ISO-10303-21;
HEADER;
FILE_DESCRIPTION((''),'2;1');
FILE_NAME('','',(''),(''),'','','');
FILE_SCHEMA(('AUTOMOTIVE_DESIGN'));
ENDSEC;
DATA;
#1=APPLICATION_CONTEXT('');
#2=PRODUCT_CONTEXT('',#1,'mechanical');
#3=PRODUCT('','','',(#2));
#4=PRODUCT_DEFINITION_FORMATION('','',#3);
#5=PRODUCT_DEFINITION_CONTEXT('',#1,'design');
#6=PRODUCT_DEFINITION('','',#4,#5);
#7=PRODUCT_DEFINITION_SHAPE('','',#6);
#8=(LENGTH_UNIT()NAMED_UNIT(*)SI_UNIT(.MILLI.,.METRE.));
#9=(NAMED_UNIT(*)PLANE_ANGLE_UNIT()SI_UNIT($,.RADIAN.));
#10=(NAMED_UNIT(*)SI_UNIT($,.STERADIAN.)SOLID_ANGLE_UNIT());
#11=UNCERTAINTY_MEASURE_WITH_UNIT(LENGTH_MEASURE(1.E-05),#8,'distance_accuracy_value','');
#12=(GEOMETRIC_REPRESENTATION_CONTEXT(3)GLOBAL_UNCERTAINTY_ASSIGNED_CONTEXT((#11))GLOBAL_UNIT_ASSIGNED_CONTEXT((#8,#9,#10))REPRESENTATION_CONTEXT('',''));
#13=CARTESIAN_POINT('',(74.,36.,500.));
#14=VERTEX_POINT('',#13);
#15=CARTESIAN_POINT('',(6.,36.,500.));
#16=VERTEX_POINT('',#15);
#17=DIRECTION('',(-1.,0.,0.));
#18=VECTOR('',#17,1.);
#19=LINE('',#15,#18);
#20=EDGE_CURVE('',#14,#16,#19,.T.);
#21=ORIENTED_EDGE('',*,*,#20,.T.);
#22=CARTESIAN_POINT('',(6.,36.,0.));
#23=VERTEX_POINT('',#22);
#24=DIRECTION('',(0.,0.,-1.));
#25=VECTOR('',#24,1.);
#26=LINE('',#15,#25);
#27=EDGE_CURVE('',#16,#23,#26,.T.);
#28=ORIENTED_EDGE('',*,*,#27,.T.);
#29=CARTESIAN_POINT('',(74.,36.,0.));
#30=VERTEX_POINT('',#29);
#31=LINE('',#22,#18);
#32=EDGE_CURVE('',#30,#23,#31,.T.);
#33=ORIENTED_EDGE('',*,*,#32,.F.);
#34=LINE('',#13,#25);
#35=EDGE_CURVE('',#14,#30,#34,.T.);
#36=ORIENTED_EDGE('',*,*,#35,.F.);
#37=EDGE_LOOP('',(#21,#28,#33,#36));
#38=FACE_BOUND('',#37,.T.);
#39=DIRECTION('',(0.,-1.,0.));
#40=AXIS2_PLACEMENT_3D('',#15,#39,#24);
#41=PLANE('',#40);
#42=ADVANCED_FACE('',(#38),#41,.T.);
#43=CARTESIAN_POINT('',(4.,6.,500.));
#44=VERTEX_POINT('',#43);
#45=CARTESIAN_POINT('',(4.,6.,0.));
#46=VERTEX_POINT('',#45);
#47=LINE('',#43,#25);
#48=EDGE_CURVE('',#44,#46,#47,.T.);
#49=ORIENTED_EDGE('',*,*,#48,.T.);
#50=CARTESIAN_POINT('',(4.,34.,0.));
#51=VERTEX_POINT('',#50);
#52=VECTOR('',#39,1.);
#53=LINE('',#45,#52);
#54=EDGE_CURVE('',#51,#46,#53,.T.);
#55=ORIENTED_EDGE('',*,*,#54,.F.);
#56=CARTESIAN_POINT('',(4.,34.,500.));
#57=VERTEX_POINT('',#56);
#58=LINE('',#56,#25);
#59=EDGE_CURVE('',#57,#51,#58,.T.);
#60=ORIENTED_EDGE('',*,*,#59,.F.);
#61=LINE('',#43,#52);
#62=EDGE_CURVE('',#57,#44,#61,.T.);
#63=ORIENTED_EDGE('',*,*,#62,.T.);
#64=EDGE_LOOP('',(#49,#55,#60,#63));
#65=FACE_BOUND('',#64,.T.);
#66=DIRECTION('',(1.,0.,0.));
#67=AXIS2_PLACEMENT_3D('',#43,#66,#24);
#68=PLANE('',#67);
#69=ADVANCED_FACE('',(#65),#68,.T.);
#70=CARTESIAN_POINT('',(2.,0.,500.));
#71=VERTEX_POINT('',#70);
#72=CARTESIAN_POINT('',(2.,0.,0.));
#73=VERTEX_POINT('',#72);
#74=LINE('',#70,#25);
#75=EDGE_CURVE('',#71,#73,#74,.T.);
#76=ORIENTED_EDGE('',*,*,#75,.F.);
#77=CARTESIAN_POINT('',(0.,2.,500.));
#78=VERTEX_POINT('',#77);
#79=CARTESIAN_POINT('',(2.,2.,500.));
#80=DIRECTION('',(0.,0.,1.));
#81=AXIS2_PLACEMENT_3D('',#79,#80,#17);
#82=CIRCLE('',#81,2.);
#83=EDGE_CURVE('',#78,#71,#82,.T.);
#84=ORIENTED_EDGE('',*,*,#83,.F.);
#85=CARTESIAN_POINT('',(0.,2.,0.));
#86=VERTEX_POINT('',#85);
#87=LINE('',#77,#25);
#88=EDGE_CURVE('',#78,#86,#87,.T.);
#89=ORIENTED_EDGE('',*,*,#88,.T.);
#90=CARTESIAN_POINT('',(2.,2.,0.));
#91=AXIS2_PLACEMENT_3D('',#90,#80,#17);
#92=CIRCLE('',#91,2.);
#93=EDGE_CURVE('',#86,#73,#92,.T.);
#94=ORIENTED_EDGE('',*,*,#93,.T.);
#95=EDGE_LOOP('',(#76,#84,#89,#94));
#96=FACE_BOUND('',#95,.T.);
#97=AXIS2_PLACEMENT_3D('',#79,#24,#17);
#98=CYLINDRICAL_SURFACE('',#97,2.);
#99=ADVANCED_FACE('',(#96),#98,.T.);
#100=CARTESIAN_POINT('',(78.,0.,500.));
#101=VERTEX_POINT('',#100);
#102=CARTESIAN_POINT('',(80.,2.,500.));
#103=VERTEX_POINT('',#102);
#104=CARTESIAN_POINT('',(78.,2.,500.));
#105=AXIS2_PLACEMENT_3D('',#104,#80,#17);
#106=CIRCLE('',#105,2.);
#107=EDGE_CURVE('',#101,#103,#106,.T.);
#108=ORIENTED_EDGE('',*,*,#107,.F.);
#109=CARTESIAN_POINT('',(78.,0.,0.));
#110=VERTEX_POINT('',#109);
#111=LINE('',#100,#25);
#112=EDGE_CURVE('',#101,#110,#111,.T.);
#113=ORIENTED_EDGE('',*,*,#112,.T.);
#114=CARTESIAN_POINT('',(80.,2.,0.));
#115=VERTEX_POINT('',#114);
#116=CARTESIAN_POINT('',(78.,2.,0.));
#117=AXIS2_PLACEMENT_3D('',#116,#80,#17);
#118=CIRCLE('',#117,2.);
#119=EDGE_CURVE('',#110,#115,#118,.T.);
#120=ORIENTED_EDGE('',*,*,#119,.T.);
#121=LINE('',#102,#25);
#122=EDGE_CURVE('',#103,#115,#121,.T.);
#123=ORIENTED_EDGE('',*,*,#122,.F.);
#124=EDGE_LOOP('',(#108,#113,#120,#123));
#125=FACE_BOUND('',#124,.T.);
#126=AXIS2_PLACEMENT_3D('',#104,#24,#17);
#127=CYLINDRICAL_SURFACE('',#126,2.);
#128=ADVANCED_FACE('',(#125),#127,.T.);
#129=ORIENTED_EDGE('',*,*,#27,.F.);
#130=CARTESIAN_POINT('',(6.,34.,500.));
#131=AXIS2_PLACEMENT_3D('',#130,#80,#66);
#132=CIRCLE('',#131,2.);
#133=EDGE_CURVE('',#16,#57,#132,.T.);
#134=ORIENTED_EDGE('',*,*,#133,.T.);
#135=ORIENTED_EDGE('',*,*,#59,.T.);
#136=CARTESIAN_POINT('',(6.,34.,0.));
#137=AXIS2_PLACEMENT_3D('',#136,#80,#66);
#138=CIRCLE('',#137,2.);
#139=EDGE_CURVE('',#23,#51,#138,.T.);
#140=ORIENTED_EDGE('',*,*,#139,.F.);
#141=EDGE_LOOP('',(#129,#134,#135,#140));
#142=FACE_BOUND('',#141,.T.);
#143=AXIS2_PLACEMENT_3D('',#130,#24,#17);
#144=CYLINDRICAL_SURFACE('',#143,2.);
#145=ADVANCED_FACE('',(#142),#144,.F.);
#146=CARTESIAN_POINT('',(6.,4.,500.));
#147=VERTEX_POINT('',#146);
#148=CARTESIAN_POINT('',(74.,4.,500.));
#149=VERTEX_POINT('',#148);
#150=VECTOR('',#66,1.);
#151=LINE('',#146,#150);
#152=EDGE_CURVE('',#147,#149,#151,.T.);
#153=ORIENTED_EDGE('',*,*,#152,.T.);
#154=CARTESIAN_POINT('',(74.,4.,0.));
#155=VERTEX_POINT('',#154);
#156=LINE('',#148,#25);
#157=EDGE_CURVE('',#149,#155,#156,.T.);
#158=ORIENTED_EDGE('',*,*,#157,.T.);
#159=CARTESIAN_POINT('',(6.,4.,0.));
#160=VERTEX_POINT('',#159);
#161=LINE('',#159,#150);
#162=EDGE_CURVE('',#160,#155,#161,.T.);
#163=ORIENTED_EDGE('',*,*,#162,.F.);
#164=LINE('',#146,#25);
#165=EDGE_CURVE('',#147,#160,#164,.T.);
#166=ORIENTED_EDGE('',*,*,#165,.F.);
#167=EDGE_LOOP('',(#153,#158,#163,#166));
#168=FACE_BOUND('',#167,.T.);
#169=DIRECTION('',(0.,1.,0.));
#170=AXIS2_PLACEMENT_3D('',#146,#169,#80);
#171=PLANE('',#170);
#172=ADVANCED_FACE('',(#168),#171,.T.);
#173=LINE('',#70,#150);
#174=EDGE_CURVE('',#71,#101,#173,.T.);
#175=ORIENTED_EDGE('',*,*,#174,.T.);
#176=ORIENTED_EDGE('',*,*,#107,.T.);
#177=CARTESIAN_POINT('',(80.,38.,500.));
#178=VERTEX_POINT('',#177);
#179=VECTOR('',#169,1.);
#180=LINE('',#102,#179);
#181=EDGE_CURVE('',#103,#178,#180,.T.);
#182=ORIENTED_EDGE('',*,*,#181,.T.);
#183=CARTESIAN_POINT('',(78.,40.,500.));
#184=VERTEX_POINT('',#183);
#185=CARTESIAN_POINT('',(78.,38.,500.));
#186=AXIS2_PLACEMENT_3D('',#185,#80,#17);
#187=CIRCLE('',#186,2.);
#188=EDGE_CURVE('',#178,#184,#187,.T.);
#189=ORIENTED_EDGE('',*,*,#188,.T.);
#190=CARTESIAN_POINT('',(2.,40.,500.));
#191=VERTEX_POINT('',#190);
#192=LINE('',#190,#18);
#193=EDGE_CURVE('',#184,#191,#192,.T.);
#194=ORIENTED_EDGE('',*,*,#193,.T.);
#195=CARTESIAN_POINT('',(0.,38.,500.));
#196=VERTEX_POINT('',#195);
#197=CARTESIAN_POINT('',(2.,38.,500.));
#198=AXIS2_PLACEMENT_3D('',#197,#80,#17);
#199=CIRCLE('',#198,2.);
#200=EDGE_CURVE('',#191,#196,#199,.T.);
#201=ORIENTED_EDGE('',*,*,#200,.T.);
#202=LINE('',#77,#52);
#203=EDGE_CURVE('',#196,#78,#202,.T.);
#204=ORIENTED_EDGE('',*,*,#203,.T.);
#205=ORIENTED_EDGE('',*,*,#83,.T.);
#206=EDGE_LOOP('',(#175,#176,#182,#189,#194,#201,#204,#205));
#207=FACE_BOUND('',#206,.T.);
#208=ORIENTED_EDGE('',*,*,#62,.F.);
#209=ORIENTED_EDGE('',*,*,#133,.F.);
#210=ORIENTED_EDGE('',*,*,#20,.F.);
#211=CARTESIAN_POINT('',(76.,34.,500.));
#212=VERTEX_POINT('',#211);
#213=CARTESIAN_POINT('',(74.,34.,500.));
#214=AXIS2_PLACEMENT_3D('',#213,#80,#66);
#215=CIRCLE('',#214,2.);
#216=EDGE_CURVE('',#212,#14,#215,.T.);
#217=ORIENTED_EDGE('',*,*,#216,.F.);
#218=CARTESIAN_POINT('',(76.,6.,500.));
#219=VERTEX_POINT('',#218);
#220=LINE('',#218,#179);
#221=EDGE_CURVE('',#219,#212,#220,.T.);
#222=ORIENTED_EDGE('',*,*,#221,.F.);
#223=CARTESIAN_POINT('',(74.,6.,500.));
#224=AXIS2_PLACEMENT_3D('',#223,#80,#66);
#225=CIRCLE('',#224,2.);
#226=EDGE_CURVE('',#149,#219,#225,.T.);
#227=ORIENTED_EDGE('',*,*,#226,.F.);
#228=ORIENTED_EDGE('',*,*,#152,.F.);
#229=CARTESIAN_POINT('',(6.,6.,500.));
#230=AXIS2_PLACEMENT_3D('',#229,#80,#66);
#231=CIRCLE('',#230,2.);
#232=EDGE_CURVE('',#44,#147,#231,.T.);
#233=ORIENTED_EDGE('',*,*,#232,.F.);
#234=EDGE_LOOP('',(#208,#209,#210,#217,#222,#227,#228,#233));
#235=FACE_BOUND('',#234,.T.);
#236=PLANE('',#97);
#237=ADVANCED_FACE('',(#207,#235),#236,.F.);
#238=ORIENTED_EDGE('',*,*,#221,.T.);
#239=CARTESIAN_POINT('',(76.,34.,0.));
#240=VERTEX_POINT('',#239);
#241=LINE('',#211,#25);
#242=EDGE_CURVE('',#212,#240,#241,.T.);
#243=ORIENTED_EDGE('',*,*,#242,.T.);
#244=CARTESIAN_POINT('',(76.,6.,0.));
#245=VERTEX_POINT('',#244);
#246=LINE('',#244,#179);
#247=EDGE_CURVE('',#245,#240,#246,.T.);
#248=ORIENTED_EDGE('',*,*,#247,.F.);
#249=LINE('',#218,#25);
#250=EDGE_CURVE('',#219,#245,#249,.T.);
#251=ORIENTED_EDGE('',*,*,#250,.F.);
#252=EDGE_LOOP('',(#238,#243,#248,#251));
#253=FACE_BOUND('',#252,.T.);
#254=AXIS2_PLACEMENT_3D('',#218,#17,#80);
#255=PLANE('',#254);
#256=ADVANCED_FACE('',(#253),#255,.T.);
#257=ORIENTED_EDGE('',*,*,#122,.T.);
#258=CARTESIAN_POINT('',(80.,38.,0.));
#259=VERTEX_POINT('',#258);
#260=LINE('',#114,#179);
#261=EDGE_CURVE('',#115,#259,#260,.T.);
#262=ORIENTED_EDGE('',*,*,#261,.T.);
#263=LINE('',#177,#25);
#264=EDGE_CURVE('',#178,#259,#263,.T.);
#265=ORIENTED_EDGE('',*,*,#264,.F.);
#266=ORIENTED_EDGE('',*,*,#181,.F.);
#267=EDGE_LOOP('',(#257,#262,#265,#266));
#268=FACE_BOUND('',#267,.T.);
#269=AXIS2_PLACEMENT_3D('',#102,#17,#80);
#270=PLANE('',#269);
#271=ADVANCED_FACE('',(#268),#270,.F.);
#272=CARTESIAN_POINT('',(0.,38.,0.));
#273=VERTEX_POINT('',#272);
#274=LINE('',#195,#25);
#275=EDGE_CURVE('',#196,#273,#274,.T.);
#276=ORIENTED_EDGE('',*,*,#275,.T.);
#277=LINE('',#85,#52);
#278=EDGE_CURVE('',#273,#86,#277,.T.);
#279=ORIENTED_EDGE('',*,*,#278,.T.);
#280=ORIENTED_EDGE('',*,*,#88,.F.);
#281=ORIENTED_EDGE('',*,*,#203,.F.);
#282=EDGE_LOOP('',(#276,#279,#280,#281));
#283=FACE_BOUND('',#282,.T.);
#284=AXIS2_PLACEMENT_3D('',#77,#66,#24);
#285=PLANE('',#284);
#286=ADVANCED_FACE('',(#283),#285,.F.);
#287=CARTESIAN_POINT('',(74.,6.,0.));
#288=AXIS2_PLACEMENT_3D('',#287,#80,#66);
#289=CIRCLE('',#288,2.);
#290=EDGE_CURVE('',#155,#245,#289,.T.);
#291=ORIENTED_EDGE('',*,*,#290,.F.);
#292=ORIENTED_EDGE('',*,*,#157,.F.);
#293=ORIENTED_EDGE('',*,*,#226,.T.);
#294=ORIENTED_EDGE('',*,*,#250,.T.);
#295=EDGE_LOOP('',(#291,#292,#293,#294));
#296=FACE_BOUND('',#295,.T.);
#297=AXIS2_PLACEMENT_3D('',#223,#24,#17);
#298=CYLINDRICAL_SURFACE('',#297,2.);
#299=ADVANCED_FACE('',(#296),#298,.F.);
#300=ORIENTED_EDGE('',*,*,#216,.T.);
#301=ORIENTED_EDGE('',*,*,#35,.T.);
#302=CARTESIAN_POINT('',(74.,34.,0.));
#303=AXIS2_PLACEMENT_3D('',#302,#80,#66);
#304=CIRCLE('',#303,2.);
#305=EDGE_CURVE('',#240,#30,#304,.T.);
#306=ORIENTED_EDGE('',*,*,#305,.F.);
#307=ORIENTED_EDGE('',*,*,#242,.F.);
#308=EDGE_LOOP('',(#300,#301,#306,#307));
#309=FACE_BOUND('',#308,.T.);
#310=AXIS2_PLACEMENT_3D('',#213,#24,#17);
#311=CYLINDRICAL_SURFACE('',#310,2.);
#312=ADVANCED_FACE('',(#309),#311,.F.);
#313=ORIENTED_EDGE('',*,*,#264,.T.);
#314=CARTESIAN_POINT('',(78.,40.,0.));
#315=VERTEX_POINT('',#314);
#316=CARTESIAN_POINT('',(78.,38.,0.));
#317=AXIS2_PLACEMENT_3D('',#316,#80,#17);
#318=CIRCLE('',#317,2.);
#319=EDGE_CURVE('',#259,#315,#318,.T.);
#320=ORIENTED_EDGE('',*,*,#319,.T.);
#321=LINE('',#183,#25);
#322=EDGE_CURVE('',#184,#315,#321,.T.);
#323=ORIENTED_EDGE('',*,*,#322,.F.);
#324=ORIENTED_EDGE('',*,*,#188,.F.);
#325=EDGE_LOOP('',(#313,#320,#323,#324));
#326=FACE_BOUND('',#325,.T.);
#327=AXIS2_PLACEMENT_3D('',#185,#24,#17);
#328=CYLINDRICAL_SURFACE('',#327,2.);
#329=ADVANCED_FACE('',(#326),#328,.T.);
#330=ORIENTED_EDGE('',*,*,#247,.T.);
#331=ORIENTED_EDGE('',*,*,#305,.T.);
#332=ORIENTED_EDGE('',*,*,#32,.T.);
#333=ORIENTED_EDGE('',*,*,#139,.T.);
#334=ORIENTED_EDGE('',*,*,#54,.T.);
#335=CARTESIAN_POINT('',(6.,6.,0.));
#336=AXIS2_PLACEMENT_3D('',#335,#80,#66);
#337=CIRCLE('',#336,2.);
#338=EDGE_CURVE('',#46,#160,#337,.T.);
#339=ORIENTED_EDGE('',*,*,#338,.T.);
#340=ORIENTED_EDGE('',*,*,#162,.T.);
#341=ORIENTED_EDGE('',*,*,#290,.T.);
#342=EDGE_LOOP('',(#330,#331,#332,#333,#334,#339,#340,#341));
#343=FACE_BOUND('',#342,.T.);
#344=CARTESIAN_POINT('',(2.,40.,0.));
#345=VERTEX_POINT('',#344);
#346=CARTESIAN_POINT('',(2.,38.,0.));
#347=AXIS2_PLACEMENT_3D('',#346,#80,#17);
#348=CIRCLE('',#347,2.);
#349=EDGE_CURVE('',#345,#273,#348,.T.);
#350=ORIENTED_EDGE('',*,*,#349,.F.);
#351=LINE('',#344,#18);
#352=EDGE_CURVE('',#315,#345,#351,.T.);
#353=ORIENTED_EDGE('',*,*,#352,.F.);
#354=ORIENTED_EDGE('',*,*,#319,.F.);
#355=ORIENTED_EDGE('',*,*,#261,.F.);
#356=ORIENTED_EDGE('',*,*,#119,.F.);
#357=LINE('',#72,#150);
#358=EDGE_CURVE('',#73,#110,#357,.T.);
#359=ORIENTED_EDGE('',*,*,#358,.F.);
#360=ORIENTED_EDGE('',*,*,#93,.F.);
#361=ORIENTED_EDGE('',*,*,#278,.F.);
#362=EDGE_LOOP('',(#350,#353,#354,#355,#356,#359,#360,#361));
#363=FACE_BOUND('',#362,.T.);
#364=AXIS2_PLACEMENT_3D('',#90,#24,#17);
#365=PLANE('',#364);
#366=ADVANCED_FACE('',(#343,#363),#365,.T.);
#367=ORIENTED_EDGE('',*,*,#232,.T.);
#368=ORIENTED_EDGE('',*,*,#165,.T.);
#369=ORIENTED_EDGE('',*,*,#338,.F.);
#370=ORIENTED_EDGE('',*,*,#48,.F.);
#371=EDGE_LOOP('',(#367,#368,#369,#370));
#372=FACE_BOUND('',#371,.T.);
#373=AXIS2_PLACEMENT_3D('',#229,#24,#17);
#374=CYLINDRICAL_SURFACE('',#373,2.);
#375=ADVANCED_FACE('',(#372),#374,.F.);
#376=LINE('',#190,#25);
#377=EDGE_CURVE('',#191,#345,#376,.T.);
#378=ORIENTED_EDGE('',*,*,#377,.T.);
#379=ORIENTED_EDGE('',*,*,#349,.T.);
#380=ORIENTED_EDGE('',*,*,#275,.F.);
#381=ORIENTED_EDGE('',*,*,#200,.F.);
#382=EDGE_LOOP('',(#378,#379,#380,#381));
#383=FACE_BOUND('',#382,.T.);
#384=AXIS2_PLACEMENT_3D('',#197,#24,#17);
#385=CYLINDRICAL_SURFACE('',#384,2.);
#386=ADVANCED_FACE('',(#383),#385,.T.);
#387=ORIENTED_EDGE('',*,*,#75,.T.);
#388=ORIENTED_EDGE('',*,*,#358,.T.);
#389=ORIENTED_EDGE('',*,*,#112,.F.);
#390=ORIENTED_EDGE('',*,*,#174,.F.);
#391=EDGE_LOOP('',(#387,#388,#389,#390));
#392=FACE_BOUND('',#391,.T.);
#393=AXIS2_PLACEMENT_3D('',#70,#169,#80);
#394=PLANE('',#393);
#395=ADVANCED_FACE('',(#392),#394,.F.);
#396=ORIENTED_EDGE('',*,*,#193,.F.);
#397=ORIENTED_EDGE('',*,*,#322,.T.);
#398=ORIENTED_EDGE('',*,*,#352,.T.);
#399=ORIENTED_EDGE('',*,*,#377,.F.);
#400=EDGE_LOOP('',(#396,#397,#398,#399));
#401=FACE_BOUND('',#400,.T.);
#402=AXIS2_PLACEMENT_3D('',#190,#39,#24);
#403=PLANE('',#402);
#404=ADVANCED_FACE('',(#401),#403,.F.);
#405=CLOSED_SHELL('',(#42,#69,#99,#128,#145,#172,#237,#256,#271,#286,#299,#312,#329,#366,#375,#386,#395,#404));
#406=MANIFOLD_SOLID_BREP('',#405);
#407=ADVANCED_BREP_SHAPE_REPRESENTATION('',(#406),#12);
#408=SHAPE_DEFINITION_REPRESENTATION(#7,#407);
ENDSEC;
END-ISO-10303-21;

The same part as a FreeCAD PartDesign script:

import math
import FreeCAD as App
import Part
import Sketcher
Q = App.Units.Quantity

doc = App.newDocument("Part")
params = doc.addObject("Spreadsheet::Sheet", "Params")
for row, (alias, value) in enumerate([
    ("sketch1_radius", "2 mm"),
    ("sketch1_width", "76 mm"),
    ("sketch1_width2", "68 mm"),
    ("sketch1_height", "36 mm"),
    ("sketch1_height2", "28 mm"),
    ("pad1_length", "500 mm"),
], start=1):
    params.set(f"A{row}", alias)
    params.set(f"B{row}", "=" + value)
    params.setAlias(f"B{row}", alias)

body = doc.addObject("PartDesign::Body", "Body")

# Sketch on XY plane
sketch1 = body.newObject("Sketcher::SketchObject", "Sketch")
sketch1.AttachmentSupport = (doc.getObject("XY_Plane"), [""])
sketch1.MapMode = "FlatFace"
sketch1.addGeometry([
    Part.LineSegment(App.Vector(2, 0, 0), App.Vector(78, 0, 0)),  # 0
    Part.ArcOfCircle(Part.Circle(App.Vector(78, 2, 0), App.Vector(0, 0, 1), 2), math.radians(-90), math.radians(0)),  # 1
    Part.LineSegment(App.Vector(80, 2, 0), App.Vector(80, 38, 0)),  # 2
    Part.ArcOfCircle(Part.Circle(App.Vector(78, 38, 0), App.Vector(0, 0, 1), 2), math.radians(0), math.radians(90)),  # 3
    Part.LineSegment(App.Vector(78, 40, 0), App.Vector(2, 40, 0)),  # 4
    Part.ArcOfCircle(Part.Circle(App.Vector(2, 38, 0), App.Vector(0, 0, 1), 2), math.radians(90), math.radians(180)),  # 5
    Part.LineSegment(App.Vector(0, 38, 0), App.Vector(0, 2, 0)),  # 6
    Part.ArcOfCircle(Part.Circle(App.Vector(2, 2, 0), App.Vector(0, 0, 1), 2), math.radians(-180), math.radians(-90)),  # 7
    Part.LineSegment(App.Vector(74, 4, 0), App.Vector(6, 4, 0)),  # 8
    Part.ArcOfCircle(Part.Circle(App.Vector(6, 6, 0), App.Vector(0, 0, 1), 2), math.radians(-180), math.radians(-90)),  # 9
    Part.LineSegment(App.Vector(4, 6, 0), App.Vector(4, 34, 0)),  # 10
    Part.ArcOfCircle(Part.Circle(App.Vector(6, 34, 0), App.Vector(0, 0, 1), 2), math.radians(90), math.radians(180)),  # 11
    Part.LineSegment(App.Vector(6, 36, 0), App.Vector(74, 36, 0)),  # 12
    Part.ArcOfCircle(Part.Circle(App.Vector(74, 34, 0), App.Vector(0, 0, 1), 2), math.radians(0), math.radians(90)),  # 13
    Part.LineSegment(App.Vector(76, 34, 0), App.Vector(76, 6, 0)),  # 14
    Part.ArcOfCircle(Part.Circle(App.Vector(74, 6, 0), App.Vector(0, 0, 1), 2), math.radians(-90), math.radians(0)),  # 15
], False)
sketch1.addConstraint([
    Sketcher.Constraint("Tangent", 0, 2, 1, 1),
    Sketcher.Constraint("Tangent", 1, 2, 2, 1),
    Sketcher.Constraint("Tangent", 2, 2, 3, 1),
    Sketcher.Constraint("Tangent", 3, 2, 4, 1),
    Sketcher.Constraint("Tangent", 4, 2, 5, 1),
    Sketcher.Constraint("Tangent", 5, 2, 6, 1),
    Sketcher.Constraint("Tangent", 6, 2, 7, 1),
    Sketcher.Constraint("Tangent", 7, 2, 0, 1),
    Sketcher.Constraint("Tangent", 8, 2, 9, 2),
    Sketcher.Constraint("Tangent", 9, 1, 10, 1),
    Sketcher.Constraint("Tangent", 10, 2, 11, 2),
    Sketcher.Constraint("Tangent", 11, 1, 12, 1),
    Sketcher.Constraint("Tangent", 12, 2, 13, 2),
    Sketcher.Constraint("Tangent", 13, 1, 14, 1),
    Sketcher.Constraint("Tangent", 14, 2, 15, 2),
    Sketcher.Constraint("Tangent", 15, 1, 8, 1),
    Sketcher.Constraint("Horizontal", 0),
    Sketcher.Constraint("Vertical", 2),
    Sketcher.Constraint("Horizontal", 4),
    Sketcher.Constraint("Vertical", 6),
    Sketcher.Constraint("Horizontal", 8),
    Sketcher.Constraint("Vertical", 10),
    Sketcher.Constraint("Horizontal", 12),
    Sketcher.Constraint("Vertical", 14),
    Sketcher.Constraint("Equal", 1, 3),
    Sketcher.Constraint("Equal", 3, 5),
    Sketcher.Constraint("Equal", 5, 7),
    Sketcher.Constraint("Equal", 7, 9),
    Sketcher.Constraint("Equal", 9, 11),
    Sketcher.Constraint("Equal", 11, 13),
    Sketcher.Constraint("Equal", 13, 15),
    Sketcher.Constraint("PointOnObject", 0, 2, -1),
    Sketcher.Constraint("PointOnObject", 5, 2, -2),
    Sketcher.Constraint("Radius", 1, Q("2 mm")),
    Sketcher.Constraint("DistanceX", 0, 1, 0, 2, Q("76 mm")),
    Sketcher.Constraint("DistanceX", 8, 2, 8, 1, Q("68 mm")),
    Sketcher.Constraint("DistanceY", 2, 1, 2, 2, Q("36 mm")),
    Sketcher.Constraint("DistanceY", 10, 1, 10, 2, Q("28 mm")),
    Sketcher.Constraint("DistanceX", -1, 1, 9, 3, Q("6 mm")),
    Sketcher.Constraint("DistanceY", -1, 1, 9, 3, Q("6 mm")),
])
sketch1.setExpression("Constraints[33]", "Params.sketch1_radius")
sketch1.setExpression("Constraints[34]", "Params.sketch1_width")
sketch1.setExpression("Constraints[35]", "Params.sketch1_width2")
sketch1.setExpression("Constraints[36]", "Params.sketch1_height")
sketch1.setExpression("Constraints[37]", "Params.sketch1_height2")
pad1 = body.newObject("PartDesign::Pad", "Pad")
pad1.Profile = sketch1
pad1.setExpression("Length", "Params.pad1_length")

doc.recompute()
